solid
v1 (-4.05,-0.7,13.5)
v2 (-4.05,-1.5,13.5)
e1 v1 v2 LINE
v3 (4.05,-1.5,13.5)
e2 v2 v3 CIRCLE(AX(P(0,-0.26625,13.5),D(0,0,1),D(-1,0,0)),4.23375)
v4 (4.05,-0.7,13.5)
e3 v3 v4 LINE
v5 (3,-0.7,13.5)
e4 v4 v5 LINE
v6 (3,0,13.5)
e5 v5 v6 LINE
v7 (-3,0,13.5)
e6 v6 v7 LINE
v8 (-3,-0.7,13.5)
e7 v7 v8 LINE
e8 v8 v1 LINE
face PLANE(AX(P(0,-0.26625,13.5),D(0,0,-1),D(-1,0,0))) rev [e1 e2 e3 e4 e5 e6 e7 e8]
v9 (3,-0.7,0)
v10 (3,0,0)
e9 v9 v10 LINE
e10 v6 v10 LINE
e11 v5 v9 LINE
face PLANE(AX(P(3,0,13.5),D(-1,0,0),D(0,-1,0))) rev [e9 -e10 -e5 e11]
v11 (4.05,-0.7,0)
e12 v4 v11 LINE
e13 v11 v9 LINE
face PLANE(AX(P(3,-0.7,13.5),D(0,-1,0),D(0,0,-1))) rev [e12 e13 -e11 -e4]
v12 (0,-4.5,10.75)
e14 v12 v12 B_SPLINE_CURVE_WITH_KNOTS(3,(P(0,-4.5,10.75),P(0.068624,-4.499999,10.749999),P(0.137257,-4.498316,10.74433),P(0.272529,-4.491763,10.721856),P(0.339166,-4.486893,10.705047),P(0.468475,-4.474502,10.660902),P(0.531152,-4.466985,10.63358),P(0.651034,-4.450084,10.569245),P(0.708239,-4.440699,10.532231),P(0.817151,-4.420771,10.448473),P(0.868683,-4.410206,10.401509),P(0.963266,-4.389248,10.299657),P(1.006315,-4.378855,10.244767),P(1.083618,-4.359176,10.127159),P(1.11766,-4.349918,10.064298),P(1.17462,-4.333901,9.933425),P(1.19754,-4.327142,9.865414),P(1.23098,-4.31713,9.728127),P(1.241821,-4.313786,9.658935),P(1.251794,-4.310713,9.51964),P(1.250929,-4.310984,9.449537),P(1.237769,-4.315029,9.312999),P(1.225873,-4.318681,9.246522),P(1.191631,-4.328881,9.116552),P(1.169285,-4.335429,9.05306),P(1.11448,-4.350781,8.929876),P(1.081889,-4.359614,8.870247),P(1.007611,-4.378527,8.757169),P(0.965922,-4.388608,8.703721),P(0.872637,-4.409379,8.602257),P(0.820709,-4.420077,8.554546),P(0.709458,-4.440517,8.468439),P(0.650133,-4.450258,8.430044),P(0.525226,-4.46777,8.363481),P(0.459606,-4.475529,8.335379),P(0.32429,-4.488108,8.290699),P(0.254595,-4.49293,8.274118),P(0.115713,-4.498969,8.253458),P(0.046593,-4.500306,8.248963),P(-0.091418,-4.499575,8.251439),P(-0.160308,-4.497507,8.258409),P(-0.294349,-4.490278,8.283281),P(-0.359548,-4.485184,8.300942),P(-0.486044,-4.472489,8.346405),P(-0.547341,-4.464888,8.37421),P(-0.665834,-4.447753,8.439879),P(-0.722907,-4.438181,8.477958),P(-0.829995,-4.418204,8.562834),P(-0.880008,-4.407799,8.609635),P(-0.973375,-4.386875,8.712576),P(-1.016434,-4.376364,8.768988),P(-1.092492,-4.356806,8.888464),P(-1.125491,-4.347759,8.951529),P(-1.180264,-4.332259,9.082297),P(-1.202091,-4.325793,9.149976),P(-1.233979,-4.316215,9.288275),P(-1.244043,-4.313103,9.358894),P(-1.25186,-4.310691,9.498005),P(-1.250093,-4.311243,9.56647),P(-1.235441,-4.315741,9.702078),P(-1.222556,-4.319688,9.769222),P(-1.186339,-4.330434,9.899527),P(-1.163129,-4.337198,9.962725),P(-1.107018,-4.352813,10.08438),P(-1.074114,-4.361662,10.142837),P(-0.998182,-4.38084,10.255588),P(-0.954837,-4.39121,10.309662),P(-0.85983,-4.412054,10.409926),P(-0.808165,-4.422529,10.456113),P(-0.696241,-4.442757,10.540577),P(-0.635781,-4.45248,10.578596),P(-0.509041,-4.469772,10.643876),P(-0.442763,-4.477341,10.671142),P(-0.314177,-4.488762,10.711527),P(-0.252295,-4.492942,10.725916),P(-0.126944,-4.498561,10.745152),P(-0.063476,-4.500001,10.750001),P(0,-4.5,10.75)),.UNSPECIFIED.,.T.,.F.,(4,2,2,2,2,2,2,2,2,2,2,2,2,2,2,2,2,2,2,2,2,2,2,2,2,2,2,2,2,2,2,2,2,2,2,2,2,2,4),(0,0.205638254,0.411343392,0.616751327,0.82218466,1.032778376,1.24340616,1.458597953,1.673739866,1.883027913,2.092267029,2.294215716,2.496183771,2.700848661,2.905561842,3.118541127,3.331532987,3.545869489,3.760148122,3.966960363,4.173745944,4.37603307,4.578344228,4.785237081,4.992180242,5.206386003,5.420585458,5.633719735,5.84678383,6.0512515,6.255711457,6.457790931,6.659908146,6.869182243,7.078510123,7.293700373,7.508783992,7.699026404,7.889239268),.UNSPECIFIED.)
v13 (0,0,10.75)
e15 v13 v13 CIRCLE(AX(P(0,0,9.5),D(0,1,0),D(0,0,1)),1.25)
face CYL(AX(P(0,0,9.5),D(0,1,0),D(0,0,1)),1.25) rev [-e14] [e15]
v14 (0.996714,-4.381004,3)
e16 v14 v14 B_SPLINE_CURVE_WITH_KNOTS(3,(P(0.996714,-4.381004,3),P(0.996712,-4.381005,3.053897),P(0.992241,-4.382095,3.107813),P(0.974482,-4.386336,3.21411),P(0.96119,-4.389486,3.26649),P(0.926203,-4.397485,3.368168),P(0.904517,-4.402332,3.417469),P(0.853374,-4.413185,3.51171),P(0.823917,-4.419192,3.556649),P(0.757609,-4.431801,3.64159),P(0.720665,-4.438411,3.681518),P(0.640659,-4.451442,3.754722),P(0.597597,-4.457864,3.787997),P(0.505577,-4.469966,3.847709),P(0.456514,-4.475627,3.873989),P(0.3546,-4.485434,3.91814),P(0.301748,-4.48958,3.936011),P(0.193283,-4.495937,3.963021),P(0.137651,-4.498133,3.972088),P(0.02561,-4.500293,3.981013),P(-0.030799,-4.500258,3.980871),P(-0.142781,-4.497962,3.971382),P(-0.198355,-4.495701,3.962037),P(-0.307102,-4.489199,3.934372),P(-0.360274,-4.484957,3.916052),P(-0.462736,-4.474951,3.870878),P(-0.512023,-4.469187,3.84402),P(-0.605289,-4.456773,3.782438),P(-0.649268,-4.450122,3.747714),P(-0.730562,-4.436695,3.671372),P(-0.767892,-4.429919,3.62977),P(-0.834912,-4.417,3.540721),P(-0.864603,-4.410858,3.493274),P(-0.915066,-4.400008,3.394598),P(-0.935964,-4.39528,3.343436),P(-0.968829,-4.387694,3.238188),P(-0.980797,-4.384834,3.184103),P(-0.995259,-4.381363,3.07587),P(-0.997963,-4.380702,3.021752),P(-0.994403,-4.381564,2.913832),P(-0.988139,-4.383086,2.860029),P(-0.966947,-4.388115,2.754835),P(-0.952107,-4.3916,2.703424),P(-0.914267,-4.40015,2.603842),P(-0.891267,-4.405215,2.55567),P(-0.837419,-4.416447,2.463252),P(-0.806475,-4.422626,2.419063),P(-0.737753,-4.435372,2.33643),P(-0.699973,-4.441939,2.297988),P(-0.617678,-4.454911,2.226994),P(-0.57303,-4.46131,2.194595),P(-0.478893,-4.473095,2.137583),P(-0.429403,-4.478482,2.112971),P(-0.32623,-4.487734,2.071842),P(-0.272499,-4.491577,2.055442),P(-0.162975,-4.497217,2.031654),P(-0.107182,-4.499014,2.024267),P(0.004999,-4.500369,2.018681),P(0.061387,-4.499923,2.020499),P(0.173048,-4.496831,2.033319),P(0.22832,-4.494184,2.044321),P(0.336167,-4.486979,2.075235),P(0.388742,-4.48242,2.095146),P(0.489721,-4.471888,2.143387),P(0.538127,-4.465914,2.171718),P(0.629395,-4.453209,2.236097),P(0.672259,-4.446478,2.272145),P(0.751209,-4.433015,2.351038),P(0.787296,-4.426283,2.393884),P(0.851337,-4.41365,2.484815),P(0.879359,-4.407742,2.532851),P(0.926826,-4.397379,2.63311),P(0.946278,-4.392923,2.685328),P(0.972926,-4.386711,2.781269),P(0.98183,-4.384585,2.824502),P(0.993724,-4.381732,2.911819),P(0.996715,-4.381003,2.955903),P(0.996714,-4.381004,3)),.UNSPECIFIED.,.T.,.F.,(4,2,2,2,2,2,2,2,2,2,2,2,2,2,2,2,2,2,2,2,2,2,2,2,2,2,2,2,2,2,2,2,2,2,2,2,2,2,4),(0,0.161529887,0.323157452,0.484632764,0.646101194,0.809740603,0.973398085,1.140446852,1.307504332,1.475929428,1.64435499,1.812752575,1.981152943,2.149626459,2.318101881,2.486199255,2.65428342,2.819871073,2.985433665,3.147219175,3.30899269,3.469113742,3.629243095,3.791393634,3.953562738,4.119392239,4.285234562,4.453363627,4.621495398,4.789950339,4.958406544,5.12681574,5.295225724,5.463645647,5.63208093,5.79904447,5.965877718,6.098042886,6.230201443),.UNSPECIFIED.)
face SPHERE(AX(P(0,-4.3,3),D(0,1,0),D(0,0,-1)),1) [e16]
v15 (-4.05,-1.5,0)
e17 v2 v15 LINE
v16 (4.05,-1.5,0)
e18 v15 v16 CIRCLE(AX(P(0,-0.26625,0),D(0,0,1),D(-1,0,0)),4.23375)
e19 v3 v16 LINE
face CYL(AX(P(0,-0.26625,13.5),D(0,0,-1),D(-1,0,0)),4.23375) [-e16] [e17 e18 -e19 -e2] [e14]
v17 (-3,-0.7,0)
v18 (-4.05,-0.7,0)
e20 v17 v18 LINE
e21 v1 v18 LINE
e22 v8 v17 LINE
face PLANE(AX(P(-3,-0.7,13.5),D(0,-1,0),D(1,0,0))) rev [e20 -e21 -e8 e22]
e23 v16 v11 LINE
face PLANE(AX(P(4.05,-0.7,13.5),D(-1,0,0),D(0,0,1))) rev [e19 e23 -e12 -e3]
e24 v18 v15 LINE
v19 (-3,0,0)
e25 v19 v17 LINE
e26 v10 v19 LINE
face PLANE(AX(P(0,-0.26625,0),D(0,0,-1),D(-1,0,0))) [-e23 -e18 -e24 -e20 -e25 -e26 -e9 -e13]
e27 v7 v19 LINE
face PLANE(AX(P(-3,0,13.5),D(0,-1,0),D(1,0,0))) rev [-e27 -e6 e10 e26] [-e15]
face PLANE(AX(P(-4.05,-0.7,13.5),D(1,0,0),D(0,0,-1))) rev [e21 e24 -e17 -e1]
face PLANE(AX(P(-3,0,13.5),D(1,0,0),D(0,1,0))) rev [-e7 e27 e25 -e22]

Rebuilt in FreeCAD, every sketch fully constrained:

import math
import FreeCAD as App
import Part
import Sketcher

doc = App.newDocument("Part")
params = doc.addObject("Spreadsheet::Sheet", "Params")
for row, (alias, value) in enumerate([
    ("sketch1_width", "6 mm"),
    ("sketch1_height", "0.7 mm"),
    ("sketch1_height2", "0.8 mm"),
    ("sketch1_width2", "1.05 mm"),
    ("pad1_length", "13.5 mm"),
    ("sketch2_diameter", "2.5 mm"),
    ("hole_diameter", "2.5 mm"),
    ("sketch3_radius", "1 mm"),
    ("revolution_angle", "360 deg"),
], start=1):
    params.set(f"A{row}", alias)
    params.set(f"B{row}", "=" + value)
    params.setAlias(f"B{row}", alias)

body = doc.addObject("PartDesign::Body", "Body")

# Sketch on XY plane
sketch1 = body.newObject("Sketcher::SketchObject", "Sketch")
sketch1.AttachmentSupport = (doc.getObject("XY_Plane"), [""])
sketch1.MapMode = "FlatFace"
sketch1.addGeometry([
    Part.LineSegment(App.Vector(3, 0, 0), App.Vector(-3, 0, 0)),  # 0
    Part.LineSegment(App.Vector(-3, 0, 0), App.Vector(-3, -0.7, 0)),  # 1
    Part.LineSegment(App.Vector(-3, -0.7, 0), App.Vector(-4, -0.7, 0)),  # 2
    Part.LineSegment(App.Vector(-4, -0.7, 0), App.Vector(-4, -1.5, 0)),  # 3
    Part.ArcOfCircle(Part.Circle(App.Vector(0, -0.3, 0), App.Vector(0, 0, 1), 4.2), math.radians(-163), math.radians(-17)),  # 4
    Part.LineSegment(App.Vector(4, -1.5, 0), App.Vector(4, -0.7, 0)),  # 5
    Part.LineSegment(App.Vector(4, -0.7, 0), App.Vector(3, -0.7, 0)),  # 6
    Part.LineSegment(App.Vector(3, -0.7, 0), App.Vector(3, 0, 0)),  # 7
], False)
sketch1.addConstraint([
    Sketcher.Constraint("Coincident", 0, 2, 1, 1),
    Sketcher.Constraint("Coincident", 1, 2, 2, 1),
    Sketcher.Constraint("Coincident", 2, 2, 3, 1),
    Sketcher.Constraint("Coincident", 3, 2, 4, 1),
    Sketcher.Constraint("Coincident", 4, 2, 5, 1),
    Sketcher.Constraint("Coincident", 5, 2, 6, 1),
    Sketcher.Constraint("Coincident", 6, 2, 7, 1),
    Sketcher.Constraint("Coincident", 7, 2, 0, 1),
    Sketcher.Constraint("Horizontal", 0),
    Sketcher.Constraint("Vertical", 1),
    Sketcher.Constraint("Horizontal", 2),
    Sketcher.Constraint("Vertical", 3),
    Sketcher.Constraint("Vertical", 5),
    Sketcher.Constraint("Horizontal", 6),
    Sketcher.Constraint("Vertical", 7),
    Sketcher.Constraint("Symmetric", 0, 2, 7, 2, -1, 1),
    Sketcher.Constraint("Symmetric", 3, 2, 4, 2, -2),
    Sketcher.Constraint("Horizontal", 2, 2, 5, 2),
    Sketcher.Constraint("DistanceX", 0, 2, 0, 1, 6.0),
    Sketcher.Constraint("DistanceY", 1, 2, 1, 1, 0.7),
    Sketcher.Constraint("DistanceY", 3, 2, 3, 1, 0.8),
    Sketcher.Constraint("DistanceX", 2, 2, 2, 1, 1.05),
    Sketcher.Constraint("Radius", 4, 4.23375),
])
sketch1.setExpression("Constraints[18]", "Params.sketch1_width")
sketch1.setExpression("Constraints[19]", "Params.sketch1_height")
sketch1.setExpression("Constraints[20]", "Params.sketch1_height2")
sketch1.setExpression("Constraints[21]", "Params.sketch1_width2")
pad1 = body.newObject("PartDesign::Pad", "Pad")
pad1.Profile = sketch1
pad1.setExpression("Length", "Params.pad1_length")

# Sketch on XZ plane
sketch2 = body.newObject("Sketcher::SketchObject", "Sketch001")
sketch2.AttachmentSupport = (doc.getObject("XZ_Plane"), [""])
sketch2.MapMode = "FlatFace"
sketch2.addGeometry(Part.Circle(App.Vector(0, 9.5, 0), App.Vector(0, 0, 1), 1.2), False)
sketch2.addConstraint([
    Sketcher.Constraint("PointOnObject", 0, 3, -2),
    Sketcher.Constraint("Diameter", 0, 2.5),
    Sketcher.Constraint("DistanceY", -1, 1, 0, 3, 9.5),
])
sketch2.setExpression("Constraints[1]", "Params.sketch2_diameter")
doc.recompute()
hole = body.newObject("PartDesign::Hole", "Hole")
hole.Profile = sketch2
hole.ThreadType = "None"
hole.setExpression("Diameter", "Params.hole_diameter")
hole.DepthType = "ThroughAll"
hole.Reversed = True

# Sketch on YZ plane
sketch3 = body.newObject("Sketcher::SketchObject", "Sketch002")
sketch3.AttachmentSupport = (doc.getObject("YZ_Plane"), [""])
sketch3.MapMode = "FlatFace"
sketch3.addGeometry([
    Part.LineSegment(App.Vector(-3.3, 3, 0), App.Vector(-5.3, 3, 0)),
    Part.ArcOfCircle(Part.Circle(App.Vector(-4.3, 3, 0), App.Vector(0, 0, 1), 1), math.radians(180), math.radians(360)),
], False)
sketch3.addGeometry(Part.LineSegment(App.Vector(-3.3, 3, 0), App.Vector(-5.3, 3, 0)), True)  # axis
sketch3.addConstraint([
    Sketcher.Constraint("Coincident", 0, 1, 1, 2),
    Sketcher.Constraint("Coincident", 1, 1, 0, 2),
    Sketcher.Constraint("Horizontal", 0),
    Sketcher.Constraint("Horizontal", 2),
    Sketcher.Constraint("Coincident", 2, 1, 0, 1),
    Sketcher.Constraint("Horizontal", 1, 3, 0, 1),
    Sketcher.Constraint("Equal", 0, 2),
    Sketcher.Constraint("Radius", 1, 1.0),
    Sketcher.Constraint("DistanceY", -1, 1, 1, 3, 3.0),
    Sketcher.Constraint("DistanceX", 1, 3, -1, 1, 4.3),
])
sketch3.setExpression("Constraints[7]", "Params.sketch3_radius")
revolution = body.newObject("PartDesign::Revolution", "Revolution")
revolution.Profile = sketch3
revolution.ReferenceAxis = (sketch3, ["Axis0"])
revolution.setExpression("Angle", "Params.revolution_angle")

doc.recompute()
